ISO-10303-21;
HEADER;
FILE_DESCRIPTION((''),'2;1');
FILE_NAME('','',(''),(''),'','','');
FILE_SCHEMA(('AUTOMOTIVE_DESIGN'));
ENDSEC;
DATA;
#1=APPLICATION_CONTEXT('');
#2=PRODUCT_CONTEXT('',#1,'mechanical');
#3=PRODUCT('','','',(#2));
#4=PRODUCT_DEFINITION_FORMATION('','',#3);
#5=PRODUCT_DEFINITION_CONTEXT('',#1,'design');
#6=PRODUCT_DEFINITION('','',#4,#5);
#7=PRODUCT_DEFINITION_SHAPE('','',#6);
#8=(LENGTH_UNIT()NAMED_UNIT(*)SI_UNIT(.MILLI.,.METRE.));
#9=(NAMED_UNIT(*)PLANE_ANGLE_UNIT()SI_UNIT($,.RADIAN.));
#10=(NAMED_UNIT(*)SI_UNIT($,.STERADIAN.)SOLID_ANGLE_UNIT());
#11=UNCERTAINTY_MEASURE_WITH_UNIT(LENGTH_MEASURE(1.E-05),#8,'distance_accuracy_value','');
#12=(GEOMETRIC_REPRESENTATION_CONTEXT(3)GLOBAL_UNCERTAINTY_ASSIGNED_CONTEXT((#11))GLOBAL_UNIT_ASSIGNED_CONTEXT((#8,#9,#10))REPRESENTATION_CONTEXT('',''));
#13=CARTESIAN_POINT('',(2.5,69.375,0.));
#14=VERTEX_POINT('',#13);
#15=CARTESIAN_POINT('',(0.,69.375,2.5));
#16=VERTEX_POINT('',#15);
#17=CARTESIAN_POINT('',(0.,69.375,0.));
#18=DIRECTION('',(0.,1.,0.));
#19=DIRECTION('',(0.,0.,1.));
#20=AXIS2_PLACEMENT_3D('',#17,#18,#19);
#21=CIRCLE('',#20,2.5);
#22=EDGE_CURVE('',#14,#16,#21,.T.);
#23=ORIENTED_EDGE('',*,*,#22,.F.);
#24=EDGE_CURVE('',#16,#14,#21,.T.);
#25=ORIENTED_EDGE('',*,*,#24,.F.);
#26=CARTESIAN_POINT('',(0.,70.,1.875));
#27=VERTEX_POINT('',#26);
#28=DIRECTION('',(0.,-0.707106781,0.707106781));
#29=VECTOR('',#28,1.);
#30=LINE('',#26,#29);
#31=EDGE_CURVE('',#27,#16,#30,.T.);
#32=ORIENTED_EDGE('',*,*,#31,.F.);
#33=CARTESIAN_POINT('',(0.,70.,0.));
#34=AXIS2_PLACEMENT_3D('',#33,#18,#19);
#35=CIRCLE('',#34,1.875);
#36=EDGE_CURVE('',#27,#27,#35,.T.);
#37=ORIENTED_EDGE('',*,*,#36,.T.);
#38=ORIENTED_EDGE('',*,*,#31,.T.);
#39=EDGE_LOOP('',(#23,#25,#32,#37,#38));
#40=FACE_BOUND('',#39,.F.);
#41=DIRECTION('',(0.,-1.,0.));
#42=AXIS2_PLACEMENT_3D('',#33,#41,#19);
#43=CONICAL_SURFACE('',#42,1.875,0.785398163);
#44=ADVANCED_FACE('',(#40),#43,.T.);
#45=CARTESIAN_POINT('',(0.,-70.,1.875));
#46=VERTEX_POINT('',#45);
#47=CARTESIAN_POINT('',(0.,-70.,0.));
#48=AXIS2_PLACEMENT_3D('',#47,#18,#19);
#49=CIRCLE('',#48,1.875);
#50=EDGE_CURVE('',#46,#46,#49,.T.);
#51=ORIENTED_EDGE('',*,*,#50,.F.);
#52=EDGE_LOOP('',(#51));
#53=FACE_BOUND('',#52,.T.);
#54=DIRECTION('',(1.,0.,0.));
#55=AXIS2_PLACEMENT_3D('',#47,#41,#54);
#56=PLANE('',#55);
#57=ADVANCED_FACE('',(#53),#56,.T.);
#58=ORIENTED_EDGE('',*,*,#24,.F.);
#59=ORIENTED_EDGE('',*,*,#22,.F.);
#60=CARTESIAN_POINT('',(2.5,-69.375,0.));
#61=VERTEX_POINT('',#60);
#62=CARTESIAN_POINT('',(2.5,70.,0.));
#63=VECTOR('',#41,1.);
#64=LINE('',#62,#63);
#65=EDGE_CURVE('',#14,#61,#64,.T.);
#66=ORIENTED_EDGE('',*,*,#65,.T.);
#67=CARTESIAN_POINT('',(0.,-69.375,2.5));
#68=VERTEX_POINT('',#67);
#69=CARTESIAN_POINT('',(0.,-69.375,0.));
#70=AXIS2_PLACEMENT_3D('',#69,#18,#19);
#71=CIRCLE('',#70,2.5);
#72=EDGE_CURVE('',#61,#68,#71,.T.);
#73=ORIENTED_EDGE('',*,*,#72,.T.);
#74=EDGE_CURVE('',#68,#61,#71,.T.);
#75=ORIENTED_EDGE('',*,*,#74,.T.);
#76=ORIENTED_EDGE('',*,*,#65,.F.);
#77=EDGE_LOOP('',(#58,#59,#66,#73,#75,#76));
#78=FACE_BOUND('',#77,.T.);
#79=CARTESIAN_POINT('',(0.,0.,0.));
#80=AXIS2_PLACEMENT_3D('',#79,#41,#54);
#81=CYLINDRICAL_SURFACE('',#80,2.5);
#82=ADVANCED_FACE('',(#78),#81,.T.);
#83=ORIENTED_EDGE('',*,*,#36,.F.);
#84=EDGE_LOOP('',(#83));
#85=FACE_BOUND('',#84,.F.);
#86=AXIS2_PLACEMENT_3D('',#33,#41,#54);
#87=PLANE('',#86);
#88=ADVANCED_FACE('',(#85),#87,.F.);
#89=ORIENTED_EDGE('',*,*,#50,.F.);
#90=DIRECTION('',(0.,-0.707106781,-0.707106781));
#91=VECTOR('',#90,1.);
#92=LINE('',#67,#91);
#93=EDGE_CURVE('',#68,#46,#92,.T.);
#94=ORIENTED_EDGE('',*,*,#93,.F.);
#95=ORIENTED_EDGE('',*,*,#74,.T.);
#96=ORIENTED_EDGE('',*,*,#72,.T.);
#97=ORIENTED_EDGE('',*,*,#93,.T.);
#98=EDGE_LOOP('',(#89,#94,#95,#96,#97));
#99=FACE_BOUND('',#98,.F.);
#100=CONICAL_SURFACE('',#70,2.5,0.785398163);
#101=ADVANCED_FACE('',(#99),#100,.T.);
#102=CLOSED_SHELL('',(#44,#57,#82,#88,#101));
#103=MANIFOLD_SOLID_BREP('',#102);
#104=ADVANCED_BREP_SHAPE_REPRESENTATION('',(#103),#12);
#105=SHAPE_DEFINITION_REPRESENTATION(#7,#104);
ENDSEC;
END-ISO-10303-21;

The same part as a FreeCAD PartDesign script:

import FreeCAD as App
import Part
import Sketcher

V = App.Vector


def add_polygon(sketch, points):
    """Adds a closed chain of lines whose ends are joined by coincident constraints."""
    first, n = sketch.GeometryCount, len(points)
    for a, b in zip(points, points[1:] + points[:1]):
        sketch.addGeometry(Part.LineSegment(App.Vector(*a, 0), App.Vector(*b, 0)), False)
    for i in range(n):
        sketch.addConstraint(Sketcher.Constraint("Coincident", first + i, 2, first + (i + 1) % n, 1))

doc = App.newDocument("Part")
body = doc.addObject("PartDesign::Body", "Body")

# Sketch on XZ plane
sketch1 = body.newObject("Sketcher::SketchObject", "Sketch")
sketch1.AttachmentSupport = (doc.getObject("XZ_Plane"), [""])
sketch1.MapMode = "FlatFace"
sketch1.addGeometry(Part.Circle(V(0, 0, 0), V(0, 0, 1), 2.5), False)
sketch1.addConstraint(Sketcher.Constraint("Coincident", 0, 3, -1, 1))
sketch1.addConstraint(Sketcher.Constraint("Diameter", 0, 5.0))
pad1 = body.newObject("PartDesign::Pad", "Pad")
pad1.Profile = sketch1
pad1.Length = 140
pad1.Midplane = True

# Sketch on YZ plane
sketch2 = body.newObject("Sketcher::SketchObject", "Sketch001")
sketch2.AttachmentSupport = (doc.getObject("YZ_Plane"), [""])
sketch2.MapMode = "FlatFace"
add_polygon(sketch2, [(70, 4.5), (-70, 4.5), (-70, 1.9), (-69.4, 2.5), (69.4, 2.5), (70, 1.9)])  # lines 0-5
sketch2.addConstraint(Sketcher.Constraint("Horizontal", 0))
sketch2.addConstraint(Sketcher.Constraint("Vertical", 1))
sketch2.addConstraint(Sketcher.Constraint("Horizontal", 3))
sketch2.addConstraint(Sketcher.Constraint("Vertical", 5))
sketch2.addConstraint(Sketcher.Constraint("Symmetric", 1, 2, 4, 2, -2))
sketch2.addConstraint(Sketcher.Constraint("Perpendicular", 2, 4))
sketch2.addConstraint(Sketcher.Constraint("Equal", 2, 4))
sketch2.addConstraint(Sketcher.Constraint("DistanceX", 0, 2, 0, 1, 140.0))
sketch2.addConstraint(Sketcher.Constraint("DistanceY", 2, 2, 0, 2, 2.0))
sketch2.addConstraint(Sketcher.Constraint("DistanceX", 3, 1, 3, 2, 138.75))
sketch2.addConstraint(Sketcher.Constraint("DistanceY", -1, 1, 0, 2, 4.5))
groove = body.newObject("PartDesign::Groove", "Groove")
groove.Profile = sketch2
groove.ReferenceAxis = (sketch2, ["H_Axis"])
groove.Angle = 360

doc.recompute()
